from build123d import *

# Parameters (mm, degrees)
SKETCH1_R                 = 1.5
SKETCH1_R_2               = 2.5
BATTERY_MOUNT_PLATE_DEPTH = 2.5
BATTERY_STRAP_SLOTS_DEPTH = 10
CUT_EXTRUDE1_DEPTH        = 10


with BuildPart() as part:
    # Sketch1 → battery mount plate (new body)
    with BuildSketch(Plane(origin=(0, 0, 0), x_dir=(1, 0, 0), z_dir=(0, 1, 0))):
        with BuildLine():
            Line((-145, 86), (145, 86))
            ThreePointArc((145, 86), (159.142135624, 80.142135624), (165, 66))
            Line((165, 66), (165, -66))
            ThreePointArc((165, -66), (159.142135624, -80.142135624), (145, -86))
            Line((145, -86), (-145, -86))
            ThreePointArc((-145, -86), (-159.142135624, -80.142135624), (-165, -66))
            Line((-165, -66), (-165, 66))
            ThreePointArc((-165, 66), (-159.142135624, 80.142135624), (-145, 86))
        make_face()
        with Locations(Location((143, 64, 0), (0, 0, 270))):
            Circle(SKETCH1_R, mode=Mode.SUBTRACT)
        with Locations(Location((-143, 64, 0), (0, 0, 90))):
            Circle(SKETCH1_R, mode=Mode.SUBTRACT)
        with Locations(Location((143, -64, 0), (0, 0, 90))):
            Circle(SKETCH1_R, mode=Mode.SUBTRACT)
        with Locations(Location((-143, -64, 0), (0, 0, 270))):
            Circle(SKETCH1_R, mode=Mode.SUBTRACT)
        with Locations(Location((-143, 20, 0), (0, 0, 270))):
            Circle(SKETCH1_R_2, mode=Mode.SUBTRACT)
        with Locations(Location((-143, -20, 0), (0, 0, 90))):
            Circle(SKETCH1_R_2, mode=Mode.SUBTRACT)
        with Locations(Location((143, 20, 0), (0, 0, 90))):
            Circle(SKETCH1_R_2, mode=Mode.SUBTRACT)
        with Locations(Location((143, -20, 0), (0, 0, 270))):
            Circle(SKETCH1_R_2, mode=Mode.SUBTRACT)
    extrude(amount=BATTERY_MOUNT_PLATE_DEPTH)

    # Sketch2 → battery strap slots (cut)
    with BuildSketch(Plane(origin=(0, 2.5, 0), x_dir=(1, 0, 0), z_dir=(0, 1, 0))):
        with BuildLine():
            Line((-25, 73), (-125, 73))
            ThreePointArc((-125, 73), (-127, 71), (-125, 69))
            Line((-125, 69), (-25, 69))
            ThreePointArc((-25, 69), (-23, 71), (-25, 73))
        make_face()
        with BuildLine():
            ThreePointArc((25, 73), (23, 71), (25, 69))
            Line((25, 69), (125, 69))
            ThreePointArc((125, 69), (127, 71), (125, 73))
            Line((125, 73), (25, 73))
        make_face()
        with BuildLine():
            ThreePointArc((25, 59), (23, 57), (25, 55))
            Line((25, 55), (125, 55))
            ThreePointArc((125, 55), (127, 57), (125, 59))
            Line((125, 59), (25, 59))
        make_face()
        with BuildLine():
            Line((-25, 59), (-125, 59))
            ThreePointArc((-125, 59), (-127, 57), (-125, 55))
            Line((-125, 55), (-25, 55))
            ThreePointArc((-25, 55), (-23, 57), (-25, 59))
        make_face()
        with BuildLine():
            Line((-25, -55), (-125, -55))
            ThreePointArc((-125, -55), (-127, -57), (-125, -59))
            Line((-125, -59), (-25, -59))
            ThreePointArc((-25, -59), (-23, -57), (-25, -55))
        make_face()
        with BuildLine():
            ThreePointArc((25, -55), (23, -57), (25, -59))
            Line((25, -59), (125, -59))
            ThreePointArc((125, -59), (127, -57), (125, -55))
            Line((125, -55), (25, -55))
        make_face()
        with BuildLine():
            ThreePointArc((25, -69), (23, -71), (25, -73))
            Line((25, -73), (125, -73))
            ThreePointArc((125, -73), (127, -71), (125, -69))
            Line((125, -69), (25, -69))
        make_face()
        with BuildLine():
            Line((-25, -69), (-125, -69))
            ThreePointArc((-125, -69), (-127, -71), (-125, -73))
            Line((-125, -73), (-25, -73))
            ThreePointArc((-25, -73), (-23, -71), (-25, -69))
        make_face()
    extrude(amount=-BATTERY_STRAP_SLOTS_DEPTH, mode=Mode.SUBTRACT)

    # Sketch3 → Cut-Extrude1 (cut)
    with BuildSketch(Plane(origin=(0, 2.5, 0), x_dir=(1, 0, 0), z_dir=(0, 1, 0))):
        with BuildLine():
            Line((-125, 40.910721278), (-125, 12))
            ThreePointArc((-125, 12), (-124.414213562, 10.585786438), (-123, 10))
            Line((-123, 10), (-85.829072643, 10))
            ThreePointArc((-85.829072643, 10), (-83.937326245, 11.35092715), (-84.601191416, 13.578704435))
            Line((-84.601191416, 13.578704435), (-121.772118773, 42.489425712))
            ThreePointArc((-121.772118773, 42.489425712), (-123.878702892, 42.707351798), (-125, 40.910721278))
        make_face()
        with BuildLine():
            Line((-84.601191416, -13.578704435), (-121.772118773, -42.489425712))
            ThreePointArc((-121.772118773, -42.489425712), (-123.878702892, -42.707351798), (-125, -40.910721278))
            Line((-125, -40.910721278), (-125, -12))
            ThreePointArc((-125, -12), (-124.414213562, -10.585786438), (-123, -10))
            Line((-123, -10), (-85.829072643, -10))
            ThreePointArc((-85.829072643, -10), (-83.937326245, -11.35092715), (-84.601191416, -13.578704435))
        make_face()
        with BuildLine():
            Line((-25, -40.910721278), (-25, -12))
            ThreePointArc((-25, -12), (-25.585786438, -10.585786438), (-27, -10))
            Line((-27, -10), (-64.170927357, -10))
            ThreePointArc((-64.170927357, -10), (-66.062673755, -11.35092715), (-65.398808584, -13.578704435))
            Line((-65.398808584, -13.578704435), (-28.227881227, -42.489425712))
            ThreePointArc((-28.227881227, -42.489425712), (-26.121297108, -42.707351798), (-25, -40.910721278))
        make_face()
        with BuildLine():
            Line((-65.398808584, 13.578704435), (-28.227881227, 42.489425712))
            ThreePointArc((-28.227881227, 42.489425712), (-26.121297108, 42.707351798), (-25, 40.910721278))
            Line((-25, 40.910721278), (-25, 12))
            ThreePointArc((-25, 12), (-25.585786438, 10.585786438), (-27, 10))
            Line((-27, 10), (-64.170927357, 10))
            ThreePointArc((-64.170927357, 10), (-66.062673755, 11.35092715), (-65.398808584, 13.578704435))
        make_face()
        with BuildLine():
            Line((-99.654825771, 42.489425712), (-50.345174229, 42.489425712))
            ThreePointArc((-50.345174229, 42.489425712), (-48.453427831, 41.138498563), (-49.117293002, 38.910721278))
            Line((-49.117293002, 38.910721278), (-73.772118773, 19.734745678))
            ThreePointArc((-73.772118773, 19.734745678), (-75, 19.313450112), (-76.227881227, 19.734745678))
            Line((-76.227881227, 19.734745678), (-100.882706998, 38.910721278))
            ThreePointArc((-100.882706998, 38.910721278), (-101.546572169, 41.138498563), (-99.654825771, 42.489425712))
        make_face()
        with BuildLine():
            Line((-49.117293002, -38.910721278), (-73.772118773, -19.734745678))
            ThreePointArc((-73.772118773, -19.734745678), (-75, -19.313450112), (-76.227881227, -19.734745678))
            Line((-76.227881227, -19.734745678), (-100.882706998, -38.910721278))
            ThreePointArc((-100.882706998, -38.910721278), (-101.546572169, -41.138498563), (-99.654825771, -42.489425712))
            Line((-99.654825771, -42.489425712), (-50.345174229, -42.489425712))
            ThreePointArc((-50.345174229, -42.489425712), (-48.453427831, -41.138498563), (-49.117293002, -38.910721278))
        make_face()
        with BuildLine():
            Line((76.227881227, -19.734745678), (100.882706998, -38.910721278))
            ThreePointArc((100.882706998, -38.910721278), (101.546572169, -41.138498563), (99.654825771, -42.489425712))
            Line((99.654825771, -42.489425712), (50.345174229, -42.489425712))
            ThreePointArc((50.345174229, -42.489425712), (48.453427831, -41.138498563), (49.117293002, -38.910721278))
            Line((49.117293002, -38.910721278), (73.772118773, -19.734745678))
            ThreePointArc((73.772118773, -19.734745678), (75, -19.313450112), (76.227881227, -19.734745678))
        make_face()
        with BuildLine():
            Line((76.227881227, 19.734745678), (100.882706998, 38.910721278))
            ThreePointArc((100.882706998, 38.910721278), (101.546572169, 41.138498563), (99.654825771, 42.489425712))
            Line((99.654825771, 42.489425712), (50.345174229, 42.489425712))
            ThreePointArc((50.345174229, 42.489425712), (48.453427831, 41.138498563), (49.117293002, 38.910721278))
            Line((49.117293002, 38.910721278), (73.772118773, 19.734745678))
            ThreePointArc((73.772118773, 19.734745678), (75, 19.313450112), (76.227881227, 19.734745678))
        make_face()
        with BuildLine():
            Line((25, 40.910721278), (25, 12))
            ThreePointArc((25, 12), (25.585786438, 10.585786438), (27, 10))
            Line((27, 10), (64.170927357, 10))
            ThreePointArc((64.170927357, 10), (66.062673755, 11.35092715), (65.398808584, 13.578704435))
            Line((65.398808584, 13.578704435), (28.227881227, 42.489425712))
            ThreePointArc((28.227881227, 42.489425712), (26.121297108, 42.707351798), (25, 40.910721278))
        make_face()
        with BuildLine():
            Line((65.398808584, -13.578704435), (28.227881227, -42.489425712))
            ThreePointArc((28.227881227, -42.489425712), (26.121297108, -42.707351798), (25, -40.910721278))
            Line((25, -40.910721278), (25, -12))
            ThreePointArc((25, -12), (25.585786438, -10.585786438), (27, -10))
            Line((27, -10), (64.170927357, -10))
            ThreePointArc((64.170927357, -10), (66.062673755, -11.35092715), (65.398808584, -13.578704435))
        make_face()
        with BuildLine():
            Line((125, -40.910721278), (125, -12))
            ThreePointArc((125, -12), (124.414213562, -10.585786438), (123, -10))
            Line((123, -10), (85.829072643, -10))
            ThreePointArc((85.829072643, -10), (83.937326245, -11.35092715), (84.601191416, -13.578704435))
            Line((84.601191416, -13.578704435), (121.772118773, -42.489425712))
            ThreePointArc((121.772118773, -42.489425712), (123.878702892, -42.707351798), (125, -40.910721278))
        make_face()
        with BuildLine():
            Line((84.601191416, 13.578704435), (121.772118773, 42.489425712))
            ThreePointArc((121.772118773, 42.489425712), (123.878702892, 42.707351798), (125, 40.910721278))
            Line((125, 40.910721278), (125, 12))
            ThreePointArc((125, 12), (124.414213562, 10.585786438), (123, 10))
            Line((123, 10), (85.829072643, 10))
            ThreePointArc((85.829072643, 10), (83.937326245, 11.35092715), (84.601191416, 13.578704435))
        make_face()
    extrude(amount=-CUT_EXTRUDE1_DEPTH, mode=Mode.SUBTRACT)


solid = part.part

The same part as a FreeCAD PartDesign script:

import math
import FreeCAD as App
import Part
import Sketcher

V = App.Vector

doc = App.newDocument("Part")
body = doc.addObject("PartDesign::Body", "Body")

sketch1 = body.newObject("Sketcher::SketchObject", "Sketch")
sketch1.AttachmentSupport = (doc.getObject("XZ_Plane"), [""])
sketch1.MapMode = "FlatFace"
sketch1.addGeometry([
    Part.LineSegment(V(145, -86, 0), V(-145, -86, 0)),
    Part.ArcOfCircle(Part.Circle(V(-145, -66, 0), V(0, 0, 1), 20), math.radians(180), math.radians(270)),
    Part.LineSegment(V(-165, -66, 0), V(-165, 66, 0)),
    Part.ArcOfCircle(Part.Circle(V(-145, 66, 0), V(0, 0, 1), 20), math.radians(90), math.radians(180)),
    Part.LineSegment(V(-145, 86, 0), V(145, 86, 0)),
    Part.ArcOfCircle(Part.Circle(V(145, 66, 0), V(0, 0, 1), 20), math.radians(0), math.radians(90)),
    Part.LineSegment(V(165, 66, 0), V(165, -66, 0)),
    Part.ArcOfCircle(Part.Circle(V(145, -66, 0), V(0, 0, 1), 20), math.radians(-90), math.radians(0)),
    Part.Circle(V(143, 64, 0), V(0, 0, 1), 1.5),
    Part.Circle(V(143, 20, 0), V(0, 0, 1), 2.5),
    Part.Circle(V(-143, 64, 0), V(0, 0, 1), 1.5),
    Part.Circle(V(-143, 20, 0), V(0, 0, 1), 2.5),
    Part.Circle(V(143, -20, 0), V(0, 0, 1), 2.5),
    Part.Circle(V(143, -64, 0), V(0, 0, 1), 1.5),
    Part.Circle(V(-143, -20, 0), V(0, 0, 1), 2.5),
    Part.Circle(V(-143, -64, 0), V(0, 0, 1), 1.5),
], False)
sketch1.addConstraint([
    Sketcher.Constraint("Tangent", 0, 2, 1, 2),
    Sketcher.Constraint("Tangent", 1, 1, 2, 1),
    Sketcher.Constraint("Tangent", 2, 2, 3, 2),
    Sketcher.Constraint("Tangent", 3, 1, 4, 1),
    Sketcher.Constraint("Tangent", 4, 2, 5, 2),
    Sketcher.Constraint("Tangent", 5, 1, 6, 1),
    Sketcher.Constraint("Tangent", 6, 2, 7, 2),
    Sketcher.Constraint("Tangent", 7, 1, 0, 1),
    Sketcher.Constraint("Horizontal", 0),
    Sketcher.Constraint("Vertical", 2),
    Sketcher.Constraint("Horizontal", 4),
    Sketcher.Constraint("Vertical", 6),
    Sketcher.Constraint("Equal", 1, 3),
    Sketcher.Constraint("Equal", 3, 5),
    Sketcher.Constraint("Equal", 5, 7),
    Sketcher.Constraint("Equal", 8, 10),
    Sketcher.Constraint("Equal", 9, 11),
    Sketcher.Constraint("Equal", 11, 12),
    Sketcher.Constraint("Equal", 10, 13),
    Sketcher.Constraint("Equal", 12, 14),
    Sketcher.Constraint("Equal", 13, 15),
    Sketcher.Constraint("Symmetric", 1, 3, 5, 3, -1, 1),
    Sketcher.Constraint("Symmetric", 11, 3, 12, 3, -1, 1),
    Sketcher.Constraint("Symmetric", 10, 3, 13, 3, -1, 1),
    Sketcher.Constraint("Symmetric", 9, 3, 14, 3, -1, 1),
    Sketcher.Constraint("Symmetric", 8, 3, 15, 3, -1, 1),
    Sketcher.Constraint("Symmetric", 8, 3, 10, 3, -2),
    Sketcher.Constraint("Symmetric", 9, 3, 11, 3, -2),
    Sketcher.Constraint("Vertical", 8, 3, 9, 3),
    Sketcher.Constraint("Diameter", 8, 3.0),
    Sketcher.Constraint("Diameter", 9, 5.0),
    Sketcher.Constraint("Radius", 1, 20.0),
    Sketcher.Constraint("DistanceX", 0, 2, 0, 1, 290.0),
    Sketcher.Constraint("DistanceY", 2, 1, 2, 2, 132.0),
    Sketcher.Constraint("DistanceX", -1, 1, 8, 3, 143.0),
    Sketcher.Constraint("DistanceY", -1, 1, 8, 3, 64.0),
    Sketcher.Constraint("DistanceY", -1, 1, 9, 3, 20.0),
])
pad1 = body.newObject("PartDesign::Pad", "Pad")
pad1.Profile = sketch1
pad1.Length = 2.5
pad1.Reversed = True

sketch2 = body.newObject("Sketcher::SketchObject", "Sketch001")
sketch2.AttachmentSupport = (doc.getObject("XZ_Plane"), [""])
sketch2.MapMode = "FlatFace"
sketch2.AttachmentOffset = App.Placement(V(0, 0, -2.5), App.Rotation())
sketch2.addGeometry([
    Part.LineSegment(V(-25, -73, 0), V(-125, -73, 0)),
    Part.ArcOfCircle(Part.Circle(V(-125, -71, 0), V(0, 0, 1), 2), math.radians(90), math.radians(270)),
    Part.LineSegment(V(-125, -69, 0), V(-25, -69, 0)),
    Part.ArcOfCircle(Part.Circle(V(-25, -71, 0), V(0, 0, 1), 2), math.radians(-90), math.radians(90)),
    Part.ArcOfCircle(Part.Circle(V(25, -71, 0), V(0, 0, 1), 2), math.radians(90), math.radians(270)),
    Part.LineSegment(V(25, -69, 0), V(125, -69, 0)),
    Part.ArcOfCircle(Part.Circle(V(125, -71, 0), V(0, 0, 1), 2), math.radians(-90), math.radians(90)),
    Part.LineSegment(V(125, -73, 0), V(25, -73, 0)),
    Part.ArcOfCircle(Part.Circle(V(25, -57, 0), V(0, 0, 1), 2), math.radians(90), math.radians(270)),
    Part.LineSegment(V(25, -55, 0), V(125, -55, 0)),
    Part.ArcOfCircle(Part.Circle(V(125, -57, 0), V(0, 0, 1), 2), math.radians(-90), math.radians(90)),
    Part.LineSegment(V(125, -59, 0), V(25, -59, 0)),
    Part.LineSegment(V(-25, -59, 0), V(-125, -59, 0)),
    Part.ArcOfCircle(Part.Circle(V(-125, -57, 0), V(0, 0, 1), 2), math.radians(90), math.radians(270)),
    Part.LineSegment(V(-125, -55, 0), V(-25, -55, 0)),
    Part.ArcOfCircle(Part.Circle(V(-25, -57, 0), V(0, 0, 1), 2), math.radians(-90), math.radians(90)),
    Part.LineSegment(V(-25, 55, 0), V(-125, 55, 0)),
    Part.ArcOfCircle(Part.Circle(V(-125, 57, 0), V(0, 0, 1), 2), math.radians(90), math.radians(270)),
    Part.LineSegment(V(-125, 59, 0), V(-25, 59, 0)),
    Part.ArcOfCircle(Part.Circle(V(-25, 57, 0), V(0, 0, 1), 2), math.radians(-90), math.radians(90)),
    Part.ArcOfCircle(Part.Circle(V(25, 57, 0), V(0, 0, 1), 2), math.radians(90), math.radians(270)),
    Part.LineSegment(V(25, 59, 0), V(125, 59, 0)),
    Part.ArcOfCircle(Part.Circle(V(125, 57, 0), V(0, 0, 1), 2), math.radians(-90), math.radians(90)),
    Part.LineSegment(V(125, 55, 0), V(25, 55, 0)),
    Part.ArcOfCircle(Part.Circle(V(25, 71, 0), V(0, 0, 1), 2), math.radians(90), math.radians(270)),
    Part.LineSegment(V(25, 73, 0), V(125, 73, 0)),
    Part.ArcOfCircle(Part.Circle(V(125, 71, 0), V(0, 0, 1), 2), math.radians(-90), math.radians(90)),
    Part.LineSegment(V(125, 69, 0), V(25, 69, 0)),
    Part.LineSegment(V(-25, 69, 0), V(-125, 69, 0)),
    Part.ArcOfCircle(Part.Circle(V(-125, 71, 0), V(0, 0, 1), 2), math.radians(90), math.radians(270)),
    Part.LineSegment(V(-125, 73, 0), V(-25, 73, 0)),
    Part.ArcOfCircle(Part.Circle(V(-25, 71, 0), V(0, 0, 1), 2), math.radians(-90), math.radians(90)),
], False)
sketch2.addConstraint([
    Sketcher.Constraint("Tangent", 0, 2, 1, 2),
    Sketcher.Constraint("Tangent", 1, 1, 2, 1),
    Sketcher.Constraint("Tangent", 2, 2, 3, 2),
    Sketcher.Constraint("Tangent", 3, 1, 0, 1),
    Sketcher.Constraint("Tangent", 4, 1, 5, 1),
    Sketcher.Constraint("Tangent", 5, 2, 6, 2),
    Sketcher.Constraint("Tangent", 6, 1, 7, 1),
    Sketcher.Constraint("Tangent", 7, 2, 4, 2),
    Sketcher.Constraint("Tangent", 8, 1, 9, 1),
    Sketcher.Constraint("Tangent", 9, 2, 10, 2),
    Sketcher.Constraint("Tangent", 10, 1, 11, 1),
    Sketcher.Constraint("Tangent", 11, 2, 8, 2),
    Sketcher.Constraint("Tangent", 12, 2, 13, 2),
    Sketcher.Constraint("Tangent", 13, 1, 14, 1),
    Sketcher.Constraint("Tangent", 14, 2, 15, 2),
    Sketcher.Constraint("Tangent", 15, 1, 12, 1),
    Sketcher.Constraint("Tangent", 16, 2, 17, 2),
    Sketcher.Constraint("Tangent", 17, 1, 18, 1),
    Sketcher.Constraint("Tangent", 18, 2, 19, 2),
    Sketcher.Constraint("Tangent", 19, 1, 16, 1),
    Sketcher.Constraint("Tangent", 20, 1, 21, 1),
    Sketcher.Constraint("Tangent", 21, 2, 22, 2),
    Sketcher.Constraint("Tangent", 22, 1, 23, 1),
    Sketcher.Constraint("Tangent", 23, 2, 20, 2),
    Sketcher.Constraint("Tangent", 24, 1, 25, 1),
    Sketcher.Constraint("Tangent", 25, 2, 26, 2),
    Sketcher.Constraint("Tangent", 26, 1, 27, 1),
    Sketcher.Constraint("Tangent", 27, 2, 24, 2),
    Sketcher.Constraint("Tangent", 28, 2, 29, 2),
    Sketcher.Constraint("Tangent", 29, 1, 30, 1),
    Sketcher.Constraint("Tangent", 30, 2, 31, 2),
    Sketcher.Constraint("Tangent", 31, 1, 28, 1),
    Sketcher.Constraint("Horizontal", 0),
    Sketcher.Constraint("Horizontal", 2),
    Sketcher.Constraint("Horizontal", 5),
    Sketcher.Constraint("Horizontal", 7),
    Sketcher.Constraint("Horizontal", 9),
    Sketcher.Constraint("Horizontal", 11),
    Sketcher.Constraint("Horizontal", 12),
    Sketcher.Constraint("Horizontal", 14),
    Sketcher.Constraint("Horizontal", 16),
    Sketcher.Constraint("Horizontal", 18),
    Sketcher.Constraint("Horizontal", 21),
    Sketcher.Constraint("Horizontal", 23),
    Sketcher.Constraint("Horizontal", 25),
    Sketcher.Constraint("Horizontal", 27),
    Sketcher.Constraint("Horizontal", 28),
    Sketcher.Constraint("Horizontal", 30),
    Sketcher.Constraint("Equal", 3, 4),
    Sketcher.Constraint("Equal", 6, 8),
    Sketcher.Constraint("Equal", 10, 13),
    Sketcher.Constraint("Equal", 15, 17),
    Sketcher.Constraint("Equal", 19, 20),
    Sketcher.Constraint("Equal", 22, 24),
    Sketcher.Constraint("Equal", 26, 29),
    Sketcher.Constraint("Symmetric", 10, 3, 17, 3, -1, 1),
    Sketcher.Constraint("Symmetric", 15, 3, 20, 3, -1, 1),
    Sketcher.Constraint("Symmetric", 3, 3, 24, 3, -1, 1),
    Sketcher.Constraint("Symmetric", 6, 3, 29, 3, -1, 1),
    Sketcher.Constraint("Symmetric", 3, 3, 4, 3, -2),
    Sketcher.Constraint("Symmetric", 10, 3, 13, 3, -2),
    Sketcher.Constraint("Vertical", 4, 3, 8, 3),
    Sketcher.Constraint("Vertical", 6, 3, 10, 3),
    Sketcher.Constraint("Vertical", 1, 3, 13, 3),
    Sketcher.Constraint("Vertical", 3, 3, 15, 3),
    Sketcher.Constraint("Vertical", 15, 3, 19, 3),
    Sketcher.Constraint("Vertical", 10, 3, 22, 3),
    Sketcher.Constraint("Vertical", 22, 3, 26, 3),
    Sketcher.Constraint("Vertical", 19, 3, 31, 3),
    Sketcher.Constraint("Radius", 1, 2.0),
    Sketcher.Constraint("DistanceX", 0, 2, 0, 1, 100.0),
    Sketcher.Constraint("DistanceX", 1, 3, -1, 1, 125.0),
    Sketcher.Constraint("DistanceY", 1, 3, -1, 1, 71.0),
    Sketcher.Constraint("DistanceY", 8, 3, -1, 1, 57.0),
])
pocket1 = body.newObject("PartDesign::Pocket", "Pocket")
pocket1.Profile = sketch2
pocket1.Length = 10
pocket1.Reversed = True

sketch3 = body.newObject("Sketcher::SketchObject", "Sketch002")
sketch3.AttachmentSupport = (doc.getObject("XZ_Plane"), [""])
sketch3.MapMode = "FlatFace"
sketch3.AttachmentOffset = App.Placement(V(0, 0, -2.5), App.Rotation())
sketch3.addGeometry([
    Part.LineSegment(V(-125, -40.9, 0), V(-125, -12, 0)),
    Part.ArcOfCircle(Part.Circle(V(-123, -12, 0), V(0, 0, 1), 2), math.radians(90), math.radians(180)),
    Part.LineSegment(V(-123, -10, 0), V(-85.8, -10, 0)),
    Part.ArcOfCircle(Part.Circle(V(-85.8, -12, 0), V(0, 0, 1), 2), math.radians(-52), math.radians(90)),
    Part.LineSegment(V(-84.6, -13.6, 0), V(-121.8, -42.5, 0)),
    Part.ArcOfCircle(Part.Circle(V(-123, -40.9, 0), V(0, 0, 1), 2), math.radians(-180), math.radians(-52)),
    Part.LineSegment(V(-121.8, 42.5, 0), V(-84.6, 13.6, 0)),
    Part.ArcOfCircle(Part.Circle(V(-85.8, 12, 0), V(0, 0, 1), 2), math.radians(-90), math.radians(52)),
    Part.LineSegment(V(-85.8, 10, 0), V(-123, 10, 0)),
    Part.ArcOfCircle(Part.Circle(V(-123, 12, 0), V(0, 0, 1), 2), math.radians(-180), math.radians(-90)),
    Part.LineSegment(V(-125, 12, 0), V(-125, 40.9, 0)),
    Part.ArcOfCircle(Part.Circle(V(-123, 40.9, 0), V(0, 0, 1), 2), math.radians(52), math.radians(180)),
    Part.LineSegment(V(-25, 40.9, 0), V(-25, 12, 0)),
    Part.ArcOfCircle(Part.Circle(V(-27, 12, 0), V(0, 0, 1), 2), math.radians(-90), math.radians(0)),
    Part.LineSegment(V(-27, 10, 0), V(-64.2, 10, 0)),
    Part.ArcOfCircle(Part.Circle(V(-64.2, 12, 0), V(0, 0, 1), 2), math.radians(128), math.radians(270)),
    Part.LineSegment(V(-65.4, 13.6, 0), V(-28.2, 42.5, 0)),
    Part.ArcOfCircle(Part.Circle(V(-27, 40.9, 0), V(0, 0, 1), 2), math.radians(0), math.radians(128)),
    Part.LineSegment(V(-28.2, -42.5, 0), V(-65.4, -13.6, 0)),
    Part.ArcOfCircle(Part.Circle(V(-64.2, -12, 0), V(0, 0, 1), 2), math.radians(90), math.radians(232)),
    Part.LineSegment(V(-64.2, -10, 0), V(-27, -10, 0)),
    Part.ArcOfCircle(Part.Circle(V(-27, -12, 0), V(0, 0, 1), 2), math.radians(0), math.radians(90)),
    Part.LineSegment(V(-25, -12, 0), V(-25, -40.9, 0)),
    Part.ArcOfCircle(Part.Circle(V(-27, -40.9, 0), V(0, 0, 1), 2), math.radians(-128), math.radians(0)),
    Part.LineSegment(V(-50.3, -42.5, 0), V(-99.7, -42.5, 0)),
    Part.ArcOfCircle(Part.Circle(V(-99.7, -40.5, 0), V(0, 0, 1), 2), math.radians(128), math.radians(270)),
    Part.LineSegment(V(-100.9, -38.9, 0), V(-76.2, -19.7, 0)),
    Part.ArcOfCircle(Part.Circle(V(-75, -21.3, 0), V(0, 0, 1), 2), math.radians(52), math.radians(128)),
    Part.LineSegment(V(-73.8, -19.7, 0), V(-49.1, -38.9, 0)),
    Part.ArcOfCircle(Part.Circle(V(-50.3, -40.5, 0), V(0, 0, 1), 2), math.radians(-90), math.radians(52)),
    Part.LineSegment(V(-49.1, 38.9, 0), V(-73.8, 19.7, 0)),
    Part.ArcOfCircle(Part.Circle(V(-75, 21.3, 0), V(0, 0, 1), 2), math.radians(-128), math.radians(-52)),
    Part.LineSegment(V(-76.2, 19.7, 0), V(-100.9, 38.9, 0)),
    Part.ArcOfCircle(Part.Circle(V(-99.7, 40.5, 0), V(0, 0, 1), 2), math.radians(90), math.radians(232)),
    Part.LineSegment(V(-99.7, 42.5, 0), V(-50.3, 42.5, 0)),
    Part.ArcOfCircle(Part.Circle(V(-50.3, 40.5, 0), V(0, 0, 1), 2), math.radians(-52), math.radians(90)),
    Part.LineSegment(V(100.9, 38.9, 0), V(76.2, 19.7, 0)),
    Part.ArcOfCircle(Part.Circle(V(75, 21.3, 0), V(0, 0, 1), 2), math.radians(-128), math.radians(-52)),
    Part.LineSegment(V(73.8, 19.7, 0), V(49.1, 38.9, 0)),
    Part.ArcOfCircle(Part.Circle(V(50.3, 40.5, 0), V(0, 0, 1), 2), math.radians(90), math.radians(232)),
    Part.LineSegment(V(50.3, 42.5, 0), V(99.7, 42.5, 0)),
    Part.ArcOfCircle(Part.Circle(V(99.7, 40.5, 0), V(0, 0, 1), 2), math.radians(-52), math.radians(90)),
    Part.LineSegment(V(76.2, -19.7, 0), V(100.9, -38.9, 0)),
    Part.ArcOfCircle(Part.Circle(V(99.7, -40.5, 0), V(0, 0, 1), 2), math.radians(-90), math.radians(52)),
    Part.LineSegment(V(99.7, -42.5, 0), V(50.3, -42.5, 0)),
    Part.ArcOfCircle(Part.Circle(V(50.3, -40.5, 0), V(0, 0, 1), 2), math.radians(128), math.radians(270)),
    Part.LineSegment(V(49.1, -38.9, 0), V(73.8, -19.7, 0)),
    Part.ArcOfCircle(Part.Circle(V(75, -21.3, 0), V(0, 0, 1), 2), math.radians(52), math.radians(128)),
    Part.LineSegment(V(25, -40.9, 0), V(25, -12, 0)),
    Part.ArcOfCircle(Part.Circle(V(27, -12, 0), V(0, 0, 1), 2), math.radians(90), math.radians(180)),
    Part.LineSegment(V(27, -10, 0), V(64.2, -10, 0)),
    Part.ArcOfCircle(Part.Circle(V(64.2, -12, 0), V(0, 0, 1), 2), math.radians(-52), math.radians(90)),
    Part.LineSegment(V(65.4, -13.6, 0), V(28.2, -42.5, 0)),
    Part.ArcOfCircle(Part.Circle(V(27, -40.9, 0), V(0, 0, 1), 2), math.radians(-180), math.radians(-52)),
    Part.LineSegment(V(28.2, 42.5, 0), V(65.4, 13.6, 0)),
    Part.ArcOfCircle(Part.Circle(V(64.2, 12, 0), V(0, 0, 1), 2), math.radians(-90), math.radians(52)),
    Part.LineSegment(V(64.2, 10, 0), V(27, 10, 0)),
    Part.ArcOfCircle(Part.Circle(V(27, 12, 0), V(0, 0, 1), 2), math.radians(-180), math.radians(-90)),
    Part.LineSegment(V(25, 12, 0), V(25, 40.9, 0)),
    Part.ArcOfCircle(Part.Circle(V(27, 40.9, 0), V(0, 0, 1), 2), math.radians(52), math.radians(180)),
    Part.LineSegment(V(125, 40.9, 0), V(125, 12, 0)),
    Part.ArcOfCircle(Part.Circle(V(123, 12, 0), V(0, 0, 1), 2), math.radians(-90), math.radians(0)),
    Part.LineSegment(V(123, 10, 0), V(85.8, 10, 0)),
    Part.ArcOfCircle(Part.Circle(V(85.8, 12, 0), V(0, 0, 1), 2), math.radians(128), math.radians(270)),
    Part.LineSegment(V(84.6, 13.6, 0), V(121.8, 42.5, 0)),
    Part.ArcOfCircle(Part.Circle(V(123, 40.9, 0), V(0, 0, 1), 2), math.radians(0), math.radians(128)),
    Part.LineSegment(V(121.8, -42.5, 0), V(84.6, -13.6, 0)),
    Part.ArcOfCircle(Part.Circle(V(85.8, -12, 0), V(0, 0, 1), 2), math.radians(90), math.radians(232)),
    Part.LineSegment(V(85.8, -10, 0), V(123, -10, 0)),
    Part.ArcOfCircle(Part.Circle(V(123, -12, 0), V(0, 0, 1), 2), math.radians(0), math.radians(90)),
    Part.LineSegment(V(125, -12, 0), V(125, -40.9, 0)),
    Part.ArcOfCircle(Part.Circle(V(123, -40.9, 0), V(0, 0, 1), 2), math.radians(-128), math.radians(0)),
], False)
sketch3.addConstraint([
    Sketcher.Constraint("Tangent", 0, 2, 1, 2),
    Sketcher.Constraint("Tangent", 1, 1, 2, 1),
    Sketcher.Constraint("Tangent", 2, 2, 3, 2),
    Sketcher.Constraint("Tangent", 3, 1, 4, 1),
    Sketcher.Constraint("Tangent", 4, 2, 5, 2),
    Sketcher.Constraint("Tangent", 5, 1, 0, 1),
    Sketcher.Constraint("Tangent", 6, 2, 7, 2),
    Sketcher.Constraint("Tangent", 7, 1, 8, 1),
    Sketcher.Constraint("Tangent", 8, 2, 9, 2),
    Sketcher.Constraint("Tangent", 9, 1, 10, 1),
    Sketcher.Constraint("Tangent", 10, 2, 11, 2),
    Sketcher.Constraint("Tangent", 11, 1, 6, 1),
    Sketcher.Constraint("Tangent", 12, 2, 13, 2),
    Sketcher.Constraint("Tangent", 13, 1, 14, 1),
    Sketcher.Constraint("Tangent", 14, 2, 15, 2),
    Sketcher.Constraint("Tangent", 15, 1, 16, 1),
    Sketcher.Constraint("Tangent", 16, 2, 17, 2),
    Sketcher.Constraint("Tangent", 17, 1, 12, 1),
    Sketcher.Constraint("Tangent", 18, 2, 19, 2),
    Sketcher.Constraint("Tangent", 19, 1, 20, 1),
    Sketcher.Constraint("Tangent", 20, 2, 21, 2),
    Sketcher.Constraint("Tangent", 21, 1, 22, 1),
    Sketcher.Constraint("Tangent", 22, 2, 23, 2),
    Sketcher.Constraint("Tangent", 23, 1, 18, 1),
    Sketcher.Constraint("Tangent", 24, 2, 25, 2),
    Sketcher.Constraint("Tangent", 25, 1, 26, 1),
    Sketcher.Constraint("Tangent", 26, 2, 27, 2),
    Sketcher.Constraint("Tangent", 27, 1, 28, 1),
    Sketcher.Constraint("Tangent", 28, 2, 29, 2),
    Sketcher.Constraint("Tangent", 29, 1, 24, 1),
    Sketcher.Constraint("Tangent", 30, 2, 31, 2),
    Sketcher.Constraint("Tangent", 31, 1, 32, 1),
    Sketcher.Constraint("Tangent", 32, 2, 33, 2),
    Sketcher.Constraint("Tangent", 33, 1, 34, 1),
    Sketcher.Constraint("Tangent", 34, 2, 35, 2),
    Sketcher.Constraint("Tangent", 35, 1, 30, 1),
    Sketcher.Constraint("Tangent", 36, 2, 37, 2),
    Sketcher.Constraint("Tangent", 37, 1, 38, 1),
    Sketcher.Constraint("Tangent", 38, 2, 39, 2),
    Sketcher.Constraint("Tangent", 39, 1, 40, 1),
    Sketcher.Constraint("Tangent", 40, 2, 41, 2),
    Sketcher.Constraint("Tangent", 41, 1, 36, 1),
    Sketcher.Constraint("Tangent", 42, 2, 43, 2),
    Sketcher.Constraint("Tangent", 43, 1, 44, 1),
    Sketcher.Constraint("Tangent", 44, 2, 45, 2),
    Sketcher.Constraint("Tangent", 45, 1, 46, 1),
    Sketcher.Constraint("Tangent", 46, 2, 47, 2),
    Sketcher.Constraint("Tangent", 47, 1, 42, 1),
    Sketcher.Constraint("Tangent", 48, 2, 49, 2),
    Sketcher.Constraint("Tangent", 49, 1, 50, 1),
    Sketcher.Constraint("Tangent", 50, 2, 51, 2),
    Sketcher.Constraint("Tangent", 51, 1, 52, 1),
    Sketcher.Constraint("Tangent", 52, 2, 53, 2),
    Sketcher.Constraint("Tangent", 53, 1, 48, 1),
    Sketcher.Constraint("Tangent", 54, 2, 55, 2),
    Sketcher.Constraint("Tangent", 55, 1, 56, 1),
    Sketcher.Constraint("Tangent", 56, 2, 57, 2),
    Sketcher.Constraint("Tangent", 57, 1, 58, 1),
    Sketcher.Constraint("Tangent", 58, 2, 59, 2),
    Sketcher.Constraint("Tangent", 59, 1, 54, 1),
    Sketcher.Constraint("Tangent", 60, 2, 61, 2),
    Sketcher.Constraint("Tangent", 61, 1, 62, 1),
    Sketcher.Constraint("Tangent", 62, 2, 63, 2),
    Sketcher.Constraint("Tangent", 63, 1, 64, 1),
    Sketcher.Constraint("Tangent", 64, 2, 65, 2),
    Sketcher.Constraint("Tangent", 65, 1, 60, 1),
    Sketcher.Constraint("Tangent", 66, 2, 67, 2),
    Sketcher.Constraint("Tangent", 67, 1, 68, 1),
    Sketcher.Constraint("Tangent", 68, 2, 69, 2),
    Sketcher.Constraint("Tangent", 69, 1, 70, 1),
    Sketcher.Constraint("Tangent", 70, 2, 71, 2),
    Sketcher.Constraint("Tangent", 71, 1, 66, 1),
    Sketcher.Constraint("Vertical", 0),
    Sketcher.Constraint("Horizontal", 2),
    Sketcher.Constraint("Horizontal", 8),
    Sketcher.Constraint("Vertical", 10),
    Sketcher.Constraint("Vertical", 12),
    Sketcher.Constraint("Horizontal", 14),
    Sketcher.Constraint("Horizontal", 20),
    Sketcher.Constraint("Vertical", 22),
    Sketcher.Constraint("Horizontal", 24),
    Sketcher.Constraint("Horizontal", 34),
    Sketcher.Constraint("Horizontal", 40),
    Sketcher.Constraint("Horizontal", 44),
    Sketcher.Constraint("Vertical", 48),
    Sketcher.Constraint("Horizontal", 50),
    Sketcher.Constraint("Horizontal", 56),
    Sketcher.Constraint("Vertical", 58),
    Sketcher.Constraint("Vertical", 60),
    Sketcher.Constraint("Horizontal", 62),
    Sketcher.Constraint("Horizontal", 68),
    Sketcher.Constraint("Vertical", 70),
    Sketcher.Constraint("Equal", 1, 3),
    Sketcher.Constraint("Equal", 3, 5),
    Sketcher.Constraint("Equal", 5, 7),
    Sketcher.Constraint("Equal", 7, 9),
    Sketcher.Constraint("Equal", 9, 11),
    Sketcher.Constraint("Equal", 11, 13),
    Sketcher.Constraint("Equal", 13, 15),
    Sketcher.Constraint("Equal", 15, 17),
    Sketcher.Constraint("Equal", 17, 19),
    Sketcher.Constraint("Equal", 19, 21),
    Sketcher.Constraint("Equal", 21, 23),
    Sketcher.Constraint("Equal", 23, 25),
    Sketcher.Constraint("Equal", 25, 27),
    Sketcher.Constraint("Equal", 27, 29),
    Sketcher.Constraint("Equal", 29, 31),
    Sketcher.Constraint("Equal", 31, 33),
    Sketcher.Constraint("Equal", 33, 35),
    Sketcher.Constraint("Equal", 35, 37),
    Sketcher.Constraint("Equal", 37, 39),
    Sketcher.Constraint("Equal", 39, 41),
    Sketcher.Constraint("Equal", 41, 43),
    Sketcher.Constraint("Equal", 43, 45),
    Sketcher.Constraint("Equal", 45, 47),
    Sketcher.Constraint("Equal", 47, 49),
    Sketcher.Constraint("Equal", 49, 51),
    Sketcher.Constraint("Equal", 51, 53),
    Sketcher.Constraint("Equal", 53, 55),
    Sketcher.Constraint("Equal", 55, 57),
    Sketcher.Constraint("Equal", 57, 59),
    Sketcher.Constraint("Equal", 59, 61),
    Sketcher.Constraint("Equal", 61, 63),
    Sketcher.Constraint("Equal", 63, 65),
    Sketcher.Constraint("Equal", 65, 67),
    Sketcher.Constraint("Equal", 67, 69),
    Sketcher.Constraint("Equal", 69, 71),
    Sketcher.Constraint("Symmetric", 27, 3, 37, 3, -1, 1),
    Sketcher.Constraint("Symmetric", 29, 3, 39, 3, -1, 1),
    Sketcher.Constraint("Symmetric", 33, 3, 43, 3, -1, 1),
    Sketcher.Constraint("Symmetric", 31, 3, 47, 3, -1, 1),
    Sketcher.Constraint("Symmetric", 13, 3, 49, 3, -1, 1),
    Sketcher.Constraint("Symmetric", 19, 3, 55, 3, -1, 1),
    Sketcher.Constraint("Symmetric", 23, 3, 59, 3, -1, 1),
    Sketcher.Constraint("Symmetric", 1, 3, 61, 3, -1, 1),
    Sketcher.Constraint("Symmetric", 7, 3, 67, 3, -1, 1),
    Sketcher.Constraint("Symmetric", 11, 3, 71, 3, -1, 1),
    Sketcher.Constraint("Symmetric", 15, 1, 51, 1, -1, 1),
    Sketcher.Constraint("Symmetric", 3, 1, 63, 1, -1, 1),
    Sketcher.Constraint("Symmetric", 31, 3, 37, 3, -2),
    Sketcher.Constraint("Symmetric", 35, 3, 39, 3, -2),
    Sketcher.Constraint("Symmetric", 21, 3, 49, 3, -2),
    Sketcher.Constraint("Symmetric", 9, 3, 61, 3, -2),
    Sketcher.Constraint("Symmetric", 18, 2, 51, 1, -2),
    Sketcher.Constraint("Symmetric", 6, 2, 63, 1, -2),
    Sketcher.Constraint("Parallel", 4, 16),
    Sketcher.Constraint("Parallel", 16, 26),
    Sketcher.Constraint("Parallel", 18, 28),
    Sketcher.Constraint("Parallel", 28, 32),
    Sketcher.Constraint("Parallel", 30, 36),
    Sketcher.Constraint("Parallel", 36, 46),
    Sketcher.Constraint("Horizontal", 9, 3, 13, 3),
    Sketcher.Constraint("Horizontal", 11, 3, 17, 3),
    Sketcher.Constraint("Horizontal", 23, 1, 24, 2),
    Sketcher.Constraint("Radius", 1, 2.0),
    Sketcher.Constraint("DistanceX", 1, 3, -1, 1, 123.0),
    Sketcher.Constraint("DistanceY", 1, 3, -1, 1, 12.0),
    Sketcher.Constraint("DistanceX", 13, 3, -1, 1, 27.0),
    Sketcher.Constraint("DistanceX", 27, 3, -1, 1, 75.0),
    Sketcher.Constraint("DistanceX", 24, 2, 24, 1, 49.309652),
    Sketcher.Constraint("DistanceY", 0, 1, 0, 2, 28.910721),
    Sketcher.Constraint("Distance", 4, 47.09042),
])
pocket2 = body.newObject("PartDesign::Pocket", "Pocket001")
pocket2.Profile = sketch3
pocket2.Length = 10
pocket2.Reversed = True

doc.recompute()
